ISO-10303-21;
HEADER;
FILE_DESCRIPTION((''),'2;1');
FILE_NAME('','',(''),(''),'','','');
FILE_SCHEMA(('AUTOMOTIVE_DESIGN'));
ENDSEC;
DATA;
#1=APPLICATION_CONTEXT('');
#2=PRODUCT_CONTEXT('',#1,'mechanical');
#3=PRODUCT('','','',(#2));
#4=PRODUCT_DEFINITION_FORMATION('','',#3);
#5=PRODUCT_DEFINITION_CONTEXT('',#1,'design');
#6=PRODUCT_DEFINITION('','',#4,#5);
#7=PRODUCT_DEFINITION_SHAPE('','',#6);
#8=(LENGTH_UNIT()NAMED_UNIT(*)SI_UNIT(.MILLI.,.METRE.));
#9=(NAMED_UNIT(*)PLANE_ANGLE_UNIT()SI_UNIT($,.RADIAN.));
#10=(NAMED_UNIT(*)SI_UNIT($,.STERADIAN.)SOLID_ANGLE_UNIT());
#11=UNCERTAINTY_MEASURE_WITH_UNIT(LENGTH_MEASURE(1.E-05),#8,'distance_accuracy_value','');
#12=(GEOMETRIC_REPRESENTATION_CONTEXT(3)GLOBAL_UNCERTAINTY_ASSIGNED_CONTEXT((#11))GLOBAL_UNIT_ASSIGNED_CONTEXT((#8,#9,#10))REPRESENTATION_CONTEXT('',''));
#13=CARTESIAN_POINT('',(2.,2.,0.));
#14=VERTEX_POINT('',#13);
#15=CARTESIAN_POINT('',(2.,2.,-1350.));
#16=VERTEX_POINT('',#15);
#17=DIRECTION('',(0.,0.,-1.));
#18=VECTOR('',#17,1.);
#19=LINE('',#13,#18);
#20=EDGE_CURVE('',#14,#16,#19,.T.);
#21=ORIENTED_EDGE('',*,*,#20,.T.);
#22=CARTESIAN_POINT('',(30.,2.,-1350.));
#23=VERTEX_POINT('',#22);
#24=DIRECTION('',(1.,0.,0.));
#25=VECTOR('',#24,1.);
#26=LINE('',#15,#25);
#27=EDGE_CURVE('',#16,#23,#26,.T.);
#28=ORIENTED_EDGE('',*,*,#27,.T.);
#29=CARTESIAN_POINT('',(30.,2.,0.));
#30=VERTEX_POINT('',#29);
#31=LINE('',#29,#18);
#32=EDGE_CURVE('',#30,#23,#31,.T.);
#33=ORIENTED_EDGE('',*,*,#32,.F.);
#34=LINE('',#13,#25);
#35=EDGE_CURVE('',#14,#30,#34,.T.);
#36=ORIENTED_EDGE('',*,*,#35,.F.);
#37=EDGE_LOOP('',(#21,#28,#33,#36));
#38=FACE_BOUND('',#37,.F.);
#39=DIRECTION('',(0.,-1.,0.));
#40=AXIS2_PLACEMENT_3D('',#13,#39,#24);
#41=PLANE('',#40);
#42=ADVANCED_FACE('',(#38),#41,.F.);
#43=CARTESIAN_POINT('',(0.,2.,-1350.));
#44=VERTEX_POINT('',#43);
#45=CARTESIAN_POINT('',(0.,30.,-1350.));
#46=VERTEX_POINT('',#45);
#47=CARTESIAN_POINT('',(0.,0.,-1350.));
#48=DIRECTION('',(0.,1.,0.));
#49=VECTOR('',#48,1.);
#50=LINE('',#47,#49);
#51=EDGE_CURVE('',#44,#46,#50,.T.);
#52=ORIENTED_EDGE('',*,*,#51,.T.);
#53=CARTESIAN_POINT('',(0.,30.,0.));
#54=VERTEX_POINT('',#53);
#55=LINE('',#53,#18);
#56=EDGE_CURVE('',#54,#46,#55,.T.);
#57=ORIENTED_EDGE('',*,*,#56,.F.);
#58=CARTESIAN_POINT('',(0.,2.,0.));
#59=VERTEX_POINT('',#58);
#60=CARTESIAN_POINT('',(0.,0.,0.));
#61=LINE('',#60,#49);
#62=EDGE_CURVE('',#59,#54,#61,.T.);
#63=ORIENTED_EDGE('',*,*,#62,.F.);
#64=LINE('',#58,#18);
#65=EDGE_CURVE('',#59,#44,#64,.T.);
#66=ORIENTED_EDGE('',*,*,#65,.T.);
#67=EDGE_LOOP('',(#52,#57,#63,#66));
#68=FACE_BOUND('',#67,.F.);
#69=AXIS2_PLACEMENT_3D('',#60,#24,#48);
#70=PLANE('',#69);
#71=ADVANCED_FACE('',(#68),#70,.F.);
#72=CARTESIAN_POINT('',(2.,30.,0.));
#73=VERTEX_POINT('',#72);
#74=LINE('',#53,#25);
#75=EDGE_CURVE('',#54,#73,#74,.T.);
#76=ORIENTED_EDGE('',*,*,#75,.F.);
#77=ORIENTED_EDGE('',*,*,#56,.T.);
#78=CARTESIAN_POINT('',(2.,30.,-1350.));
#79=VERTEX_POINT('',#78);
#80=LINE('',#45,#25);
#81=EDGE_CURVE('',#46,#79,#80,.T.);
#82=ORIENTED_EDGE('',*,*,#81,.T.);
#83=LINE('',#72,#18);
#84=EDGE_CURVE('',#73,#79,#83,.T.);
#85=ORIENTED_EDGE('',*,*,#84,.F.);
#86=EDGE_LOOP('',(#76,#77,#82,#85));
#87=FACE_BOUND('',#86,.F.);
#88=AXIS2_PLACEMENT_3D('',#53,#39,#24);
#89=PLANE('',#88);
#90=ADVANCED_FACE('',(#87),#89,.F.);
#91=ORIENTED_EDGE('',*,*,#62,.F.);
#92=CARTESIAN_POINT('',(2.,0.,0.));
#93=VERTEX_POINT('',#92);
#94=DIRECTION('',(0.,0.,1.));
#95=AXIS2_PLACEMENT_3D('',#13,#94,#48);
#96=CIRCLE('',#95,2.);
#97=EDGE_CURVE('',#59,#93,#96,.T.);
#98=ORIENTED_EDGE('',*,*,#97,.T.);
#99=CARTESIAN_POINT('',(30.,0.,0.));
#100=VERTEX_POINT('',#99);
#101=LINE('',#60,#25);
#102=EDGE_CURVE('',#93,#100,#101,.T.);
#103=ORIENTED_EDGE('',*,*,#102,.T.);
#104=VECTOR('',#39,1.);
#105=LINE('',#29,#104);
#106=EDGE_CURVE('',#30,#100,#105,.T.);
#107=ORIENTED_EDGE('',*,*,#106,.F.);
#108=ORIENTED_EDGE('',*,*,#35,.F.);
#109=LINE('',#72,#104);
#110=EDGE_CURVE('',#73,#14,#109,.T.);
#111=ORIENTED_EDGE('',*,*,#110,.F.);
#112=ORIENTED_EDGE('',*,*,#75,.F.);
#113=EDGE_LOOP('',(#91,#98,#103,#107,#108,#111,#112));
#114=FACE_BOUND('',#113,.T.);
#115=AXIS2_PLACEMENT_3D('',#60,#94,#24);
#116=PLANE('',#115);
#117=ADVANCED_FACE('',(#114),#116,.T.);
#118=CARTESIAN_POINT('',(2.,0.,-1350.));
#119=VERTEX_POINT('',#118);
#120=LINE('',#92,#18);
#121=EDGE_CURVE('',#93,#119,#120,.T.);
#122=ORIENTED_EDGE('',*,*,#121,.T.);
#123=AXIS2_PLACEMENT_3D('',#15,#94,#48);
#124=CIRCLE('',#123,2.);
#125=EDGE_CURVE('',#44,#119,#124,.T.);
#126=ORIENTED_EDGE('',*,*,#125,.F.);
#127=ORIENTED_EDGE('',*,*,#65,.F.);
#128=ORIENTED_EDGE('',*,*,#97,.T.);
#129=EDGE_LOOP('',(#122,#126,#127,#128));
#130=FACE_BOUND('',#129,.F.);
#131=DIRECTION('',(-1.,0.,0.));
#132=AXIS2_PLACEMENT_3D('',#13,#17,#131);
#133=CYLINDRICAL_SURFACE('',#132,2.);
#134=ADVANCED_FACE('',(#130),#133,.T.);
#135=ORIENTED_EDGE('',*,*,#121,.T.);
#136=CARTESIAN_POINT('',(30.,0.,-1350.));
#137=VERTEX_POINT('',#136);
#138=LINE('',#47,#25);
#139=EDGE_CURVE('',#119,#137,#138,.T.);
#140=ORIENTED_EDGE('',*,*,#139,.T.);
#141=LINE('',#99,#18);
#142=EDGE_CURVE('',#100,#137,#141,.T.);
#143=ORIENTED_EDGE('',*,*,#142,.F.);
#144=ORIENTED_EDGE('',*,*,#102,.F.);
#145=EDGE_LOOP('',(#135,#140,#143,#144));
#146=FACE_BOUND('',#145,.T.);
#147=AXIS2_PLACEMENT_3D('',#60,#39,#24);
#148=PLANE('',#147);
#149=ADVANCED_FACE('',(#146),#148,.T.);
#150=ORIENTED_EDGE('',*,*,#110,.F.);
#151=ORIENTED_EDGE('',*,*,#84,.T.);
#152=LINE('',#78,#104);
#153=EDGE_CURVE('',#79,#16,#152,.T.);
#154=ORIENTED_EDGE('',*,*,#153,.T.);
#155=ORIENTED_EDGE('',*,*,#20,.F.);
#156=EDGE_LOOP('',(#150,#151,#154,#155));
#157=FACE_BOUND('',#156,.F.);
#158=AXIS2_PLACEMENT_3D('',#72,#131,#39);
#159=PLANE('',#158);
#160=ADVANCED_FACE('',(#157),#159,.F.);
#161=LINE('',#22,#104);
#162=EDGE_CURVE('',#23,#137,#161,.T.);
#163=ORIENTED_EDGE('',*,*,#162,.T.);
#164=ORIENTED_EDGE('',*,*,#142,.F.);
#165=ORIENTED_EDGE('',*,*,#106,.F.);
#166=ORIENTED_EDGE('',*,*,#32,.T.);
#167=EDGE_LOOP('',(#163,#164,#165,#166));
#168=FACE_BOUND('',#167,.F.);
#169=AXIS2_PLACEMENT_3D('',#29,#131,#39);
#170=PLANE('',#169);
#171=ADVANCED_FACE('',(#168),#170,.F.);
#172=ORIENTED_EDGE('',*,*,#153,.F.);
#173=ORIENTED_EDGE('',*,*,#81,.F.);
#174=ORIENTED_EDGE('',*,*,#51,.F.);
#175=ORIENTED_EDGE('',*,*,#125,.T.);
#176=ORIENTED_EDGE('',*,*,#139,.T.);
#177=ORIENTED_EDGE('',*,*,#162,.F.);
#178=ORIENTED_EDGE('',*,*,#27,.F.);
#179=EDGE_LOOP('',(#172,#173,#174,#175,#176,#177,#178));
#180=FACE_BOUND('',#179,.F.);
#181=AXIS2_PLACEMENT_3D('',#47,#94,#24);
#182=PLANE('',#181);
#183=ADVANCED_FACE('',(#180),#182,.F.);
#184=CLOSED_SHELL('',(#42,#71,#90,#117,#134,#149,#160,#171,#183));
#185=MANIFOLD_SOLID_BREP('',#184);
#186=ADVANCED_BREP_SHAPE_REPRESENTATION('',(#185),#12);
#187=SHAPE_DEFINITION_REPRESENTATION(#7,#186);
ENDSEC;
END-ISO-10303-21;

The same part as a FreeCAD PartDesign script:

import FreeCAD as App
import Part
import Sketcher


def edges_at(feature, points):
    """Names of the edges that pass closest to the given points."""
    edges = feature.Shape.Edges
    near = lambda p: min(range(len(edges)), key=lambda i: edges[i].distToShape(Part.Vertex(*p))[0])
    return sorted({f"Edge{near(p) + 1}" for p in points})

doc = App.newDocument("Part")
body = doc.addObject("PartDesign::Body", "Body")

# Sketch on XY plane
sketch1 = doc.addObject("Sketcher::SketchObject", "Sketch")
body.addObject(sketch1)
sketch1.AttachmentSupport = (doc.XY_Plane, [""])
sketch1.MapMode = "FlatFace"
sketch1.addGeometry([
    Part.LineSegment(App.Vector(0, 30, 0), App.Vector(0, 0, 0)),  # 0
    Part.LineSegment(App.Vector(0, 0, 0), App.Vector(30, 0, 0)),  # 1
    Part.LineSegment(App.Vector(30, 0, 0), App.Vector(30, 2, 0)),  # 2
    Part.LineSegment(App.Vector(30, 2, 0), App.Vector(2, 2, 0)),  # 3
    Part.LineSegment(App.Vector(2, 2, 0), App.Vector(2, 30, 0)),  # 4
    Part.LineSegment(App.Vector(2, 30, 0), App.Vector(0, 30, 0)),  # 5
], False)
sketch1.addConstraint([
    Sketcher.Constraint("Coincident", 0, 2, 1, 1),
    Sketcher.Constraint("Coincident", 1, 2, 2, 1),
    Sketcher.Constraint("Coincident", 2, 2, 3, 1),
    Sketcher.Constraint("Coincident", 3, 2, 4, 1),
    Sketcher.Constraint("Coincident", 4, 2, 5, 1),
    Sketcher.Constraint("Coincident", 5, 2, 0, 1),
    Sketcher.Constraint("Vertical", 0),
    Sketcher.Constraint("Horizontal", 1),
    Sketcher.Constraint("Vertical", 2),
    Sketcher.Constraint("Horizontal", 3),
    Sketcher.Constraint("Vertical", 4),
    Sketcher.Constraint("Horizontal", 5),
    Sketcher.Constraint("Coincident", 0, 2, -1, 1),
    Sketcher.Constraint("Equal", 1, 0),
    Sketcher.Constraint("Equal", 5, 2),
    Sketcher.Constraint("DistanceX", 1, 1, 1, 2, 30.0),
    Sketcher.Constraint("DistanceX", 5, 2, 5, 1, 2.0),
])
pad1 = doc.addObject("PartDesign::Pad", "Pad")
body.addObject(pad1)
pad1.Profile = sketch1
pad1.Length = 1350
pad1.Reversed = True
doc.recompute()

fillet = doc.addObject("PartDesign::Fillet", "Fillet")
body.addObject(fillet)
fillet.Base = (pad1, edges_at(pad1, [(0, 0, -675)]))
fillet.Radius = 2

doc.recompute()
